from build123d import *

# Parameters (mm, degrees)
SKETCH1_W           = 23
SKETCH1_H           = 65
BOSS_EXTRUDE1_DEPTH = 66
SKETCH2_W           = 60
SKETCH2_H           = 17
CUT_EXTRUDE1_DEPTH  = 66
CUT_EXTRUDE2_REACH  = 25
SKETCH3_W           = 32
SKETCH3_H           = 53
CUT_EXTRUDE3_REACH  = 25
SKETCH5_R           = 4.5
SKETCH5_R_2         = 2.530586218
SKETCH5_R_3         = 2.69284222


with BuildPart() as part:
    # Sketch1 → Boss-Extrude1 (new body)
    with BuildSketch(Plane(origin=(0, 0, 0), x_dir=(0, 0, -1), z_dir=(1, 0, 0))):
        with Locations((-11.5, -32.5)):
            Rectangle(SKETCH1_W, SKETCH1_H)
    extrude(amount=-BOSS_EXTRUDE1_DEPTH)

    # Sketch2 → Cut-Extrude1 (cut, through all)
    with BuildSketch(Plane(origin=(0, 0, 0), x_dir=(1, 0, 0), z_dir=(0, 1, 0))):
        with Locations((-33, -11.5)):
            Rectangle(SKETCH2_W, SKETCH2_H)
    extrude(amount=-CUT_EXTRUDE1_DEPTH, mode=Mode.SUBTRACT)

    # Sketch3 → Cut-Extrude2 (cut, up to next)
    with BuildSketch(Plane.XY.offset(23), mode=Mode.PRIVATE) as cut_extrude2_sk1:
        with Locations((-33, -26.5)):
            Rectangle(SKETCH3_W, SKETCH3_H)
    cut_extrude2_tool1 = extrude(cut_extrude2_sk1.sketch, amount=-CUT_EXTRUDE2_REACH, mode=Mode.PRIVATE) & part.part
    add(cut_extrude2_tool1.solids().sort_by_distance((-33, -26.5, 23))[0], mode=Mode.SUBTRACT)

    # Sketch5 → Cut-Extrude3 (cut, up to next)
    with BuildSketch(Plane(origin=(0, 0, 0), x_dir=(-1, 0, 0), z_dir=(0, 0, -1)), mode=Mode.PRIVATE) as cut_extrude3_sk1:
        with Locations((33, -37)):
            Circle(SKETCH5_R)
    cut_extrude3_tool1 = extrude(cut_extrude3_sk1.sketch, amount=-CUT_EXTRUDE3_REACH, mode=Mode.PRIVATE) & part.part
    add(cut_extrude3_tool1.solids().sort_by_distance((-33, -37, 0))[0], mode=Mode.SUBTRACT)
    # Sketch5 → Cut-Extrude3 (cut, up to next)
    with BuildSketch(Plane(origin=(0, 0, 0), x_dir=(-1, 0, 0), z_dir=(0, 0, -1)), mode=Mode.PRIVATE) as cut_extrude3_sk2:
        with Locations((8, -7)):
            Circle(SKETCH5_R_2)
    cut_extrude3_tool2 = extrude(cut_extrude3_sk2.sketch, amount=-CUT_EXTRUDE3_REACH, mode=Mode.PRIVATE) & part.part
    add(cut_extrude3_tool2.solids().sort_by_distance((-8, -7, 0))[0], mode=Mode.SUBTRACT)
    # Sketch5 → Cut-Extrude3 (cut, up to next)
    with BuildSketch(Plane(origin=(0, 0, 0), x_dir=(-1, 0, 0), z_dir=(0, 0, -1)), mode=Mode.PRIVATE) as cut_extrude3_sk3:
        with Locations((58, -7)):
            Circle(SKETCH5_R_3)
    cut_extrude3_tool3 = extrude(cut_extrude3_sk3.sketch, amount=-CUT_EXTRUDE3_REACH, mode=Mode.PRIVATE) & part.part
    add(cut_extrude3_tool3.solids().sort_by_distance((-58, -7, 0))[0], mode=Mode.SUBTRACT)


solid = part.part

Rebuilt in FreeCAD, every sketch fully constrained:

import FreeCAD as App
import Part
import Sketcher

V = App.Vector
Q = App.Units.Quantity

doc = App.newDocument("Part")
body = doc.addObject("PartDesign::Body", "Body")

sketch1 = body.newObject("Sketcher::SketchObject", "Sketch")
sketch1.AttachmentSupport = (doc.getObject("YZ_Plane"), [""])
sketch1.MapMode = "FlatFace"
sketch1.addGeometry(Part.LineSegment(V(0, 23, 0), V(-65, 23, 0)), False)
sketch1.addGeometry(Part.LineSegment(V(-65, 23, 0), V(-65, 0, 0)), False)
sketch1.addGeometry(Part.LineSegment(V(-65, 0, 0), V(0, 0, 0)), False)
sketch1.addGeometry(Part.LineSegment(V(0, 0, 0), V(0, 23, 0)), False)
sketch1.addConstraint(Sketcher.Constraint("Coincident", 0, 2, 1, 1))
sketch1.addConstraint(Sketcher.Constraint("Coincident", 1, 2, 2, 1))
sketch1.addConstraint(Sketcher.Constraint("Coincident", 2, 2, 3, 1))
sketch1.addConstraint(Sketcher.Constraint("Coincident", 3, 2, 0, 1))
sketch1.addConstraint(Sketcher.Constraint("Horizontal", 0))
sketch1.addConstraint(Sketcher.Constraint("Vertical", 1))
sketch1.addConstraint(Sketcher.Constraint("Horizontal", 2))
sketch1.addConstraint(Sketcher.Constraint("Vertical", 3))
sketch1.addConstraint(Sketcher.Constraint("Coincident", 2, 2, -1, 1))
sketch1.addConstraint(Sketcher.Constraint("DistanceX", 0, 2, 0, 1, Q("65 mm")))
sketch1.addConstraint(Sketcher.Constraint("DistanceY", 1, 2, 1, 1, Q("23 mm")))
pad1 = body.newObject("PartDesign::Pad", "Pad")
pad1.Profile = sketch1
pad1.Length = 66
pad1.Reversed = True

sketch2 = body.newObject("Sketcher::SketchObject", "Sketch001")
sketch2.AttachmentSupport = (doc.getObject("XZ_Plane"), [""])
sketch2.MapMode = "FlatFace"
sketch2.addGeometry(Part.LineSegment(V(-63, 3, 0), V(-63, 20, 0)), False)
sketch2.addGeometry(Part.LineSegment(V(-63, 20, 0), V(-3, 20, 0)), False)
sketch2.addGeometry(Part.LineSegment(V(-3, 20, 0), V(-3, 3, 0)), False)
sketch2.addGeometry(Part.LineSegment(V(-3, 3, 0), V(-63, 3, 0)), False)
sketch2.addConstraint(Sketcher.Constraint("Coincident", 0, 2, 1, 1))
sketch2.addConstraint(Sketcher.Constraint("Coincident", 1, 2, 2, 1))
sketch2.addConstraint(Sketcher.Constraint("Coincident", 2, 2, 3, 1))
sketch2.addConstraint(Sketcher.Constraint("Coincident", 3, 2, 0, 1))
sketch2.addConstraint(Sketcher.Constraint("Vertical", 0))
sketch2.addConstraint(Sketcher.Constraint("Horizontal", 1))
sketch2.addConstraint(Sketcher.Constraint("Vertical", 2))
sketch2.addConstraint(Sketcher.Constraint("Horizontal", 3))
sketch2.addConstraint(Sketcher.Constraint("DistanceX", 1, 1, 1, 2, Q("60 mm")))
sketch2.addConstraint(Sketcher.Constraint("DistanceY", 0, 1, 0, 2, Q("17 mm")))
sketch2.addConstraint(Sketcher.Constraint("DistanceX", 0, 2, -1, 1, Q("63 mm")))
sketch2.addConstraint(Sketcher.Constraint("DistanceY", -1, 1, 0, 2, Q("20 mm")))
pocket1 = body.newObject("PartDesign::Pocket", "Pocket")
pocket1.Profile = sketch2
pocket1.Type = "ThroughAll"
pocket1.Reversed = True

sketch3 = body.newObject("Sketcher::SketchObject", "Sketch002")
sketch3.AttachmentSupport = (doc.getObject("XY_Plane"), [""])
sketch3.MapMode = "FlatFace"
sketch3.AttachmentOffset = App.Placement(V(0, 0, 23), App.Rotation())
sketch3.addGeometry(Part.LineSegment(V(-49, 0, 0), V(-49, -53, 0)), False)
sketch3.addGeometry(Part.LineSegment(V(-49, -53, 0), V(-17, -53, 0)), False)
sketch3.addGeometry(Part.LineSegment(V(-17, -53, 0), V(-17, 0, 0)), False)
sketch3.addGeometry(Part.LineSegment(V(-17, 0, 0), V(-49, 0, 0)), False)
sketch3.addConstraint(Sketcher.Constraint("Coincident", 0, 2, 1, 1))
sketch3.addConstraint(Sketcher.Constraint("Coincident", 1, 2, 2, 1))
sketch3.addConstraint(Sketcher.Constraint("Coincident", 2, 2, 3, 1))
sketch3.addConstraint(Sketcher.Constraint("Coincident", 3, 2, 0, 1))
sketch3.addConstraint(Sketcher.Constraint("Vertical", 0))
sketch3.addConstraint(Sketcher.Constraint("Horizontal", 1))
sketch3.addConstraint(Sketcher.Constraint("Vertical", 2))
sketch3.addConstraint(Sketcher.Constraint("Horizontal", 3))
sketch3.addConstraint(Sketcher.Constraint("PointOnObject", 2, 2, -1))
sketch3.addConstraint(Sketcher.Constraint("DistanceX", 1, 1, 1, 2, Q("32 mm")))
sketch3.addConstraint(Sketcher.Constraint("DistanceY", 0, 2, 0, 1, Q("53 mm")))
sketch3.addConstraint(Sketcher.Constraint("DistanceX", 0, 2, -1, 1, Q("49 mm")))
pocket2 = body.newObject("PartDesign::Pocket", "Pocket001")
pocket2.Profile = sketch3
pocket2.Type = "UpToFirst"

sketch4 = body.newObject("Sketcher::SketchObject", "Sketch003")
sketch4.AttachmentSupport = (doc.getObject("XY_Plane"), [""])
sketch4.MapMode = "FlatFace"
sketch4.addGeometry(Part.Circle(V(-33, -37, 0), V(0, 0, 1), 4.5), False)
sketch4.addConstraint(Sketcher.Constraint("Diameter", 0, Q("9 mm")))
sketch4.addConstraint(Sketcher.Constraint("DistanceX", 0, 3, -1, 1, Q("33 mm")))
sketch4.addConstraint(Sketcher.Constraint("DistanceY", 0, 3, -1, 1, Q("37 mm")))
pocket3 = body.newObject("PartDesign::Pocket", "Pocket002")
pocket3.Profile = sketch4
pocket3.Type = "UpToFirst"
pocket3.Reversed = True

sketch5 = body.newObject("Sketcher::SketchObject", "Sketch004")
sketch5.AttachmentSupport = (doc.getObject("XY_Plane"), [""])
sketch5.MapMode = "FlatFace"
sketch5.addGeometry(Part.Circle(V(-8, -7, 0), V(0, 0, 1), 2.530586), False)
sketch5.addConstraint(Sketcher.Constraint("DistanceX", 0, 3, -1, 1, Q("8 mm")))
sketch5.addConstraint(Sketcher.Constraint("DistanceY", 0, 3, -1, 1, Q("7 mm")))
sketch5.addConstraint(Sketcher.Constraint("Diameter", 0, Q("5.061172 mm")))
pocket4 = body.newObject("PartDesign::Pocket", "Pocket003")
pocket4.Profile = sketch5
pocket4.Type = "UpToFirst"
pocket4.Reversed = True

sketch6 = body.newObject("Sketcher::SketchObject", "Sketch005")
sketch6.AttachmentSupport = (doc.getObject("XY_Plane"), [""])
sketch6.MapMode = "FlatFace"
sketch6.addGeometry(Part.Circle(V(-58, -7, 0), V(0, 0, 1), 2.692842), False)
sketch6.addConstraint(Sketcher.Constraint("DistanceX", 0, 3, -1, 1, Q("58 mm")))
sketch6.addConstraint(Sketcher.Constraint("DistanceY", 0, 3, -1, 1, Q("7 mm")))
sketch6.addConstraint(Sketcher.Constraint("Diameter", 0, Q("5.385684 mm")))
pocket5 = body.newObject("PartDesign::Pocket", "Pocket004")
pocket5.Profile = sketch6
pocket5.Type = "UpToFirst"
pocket5.Reversed = True

doc.recompute()
